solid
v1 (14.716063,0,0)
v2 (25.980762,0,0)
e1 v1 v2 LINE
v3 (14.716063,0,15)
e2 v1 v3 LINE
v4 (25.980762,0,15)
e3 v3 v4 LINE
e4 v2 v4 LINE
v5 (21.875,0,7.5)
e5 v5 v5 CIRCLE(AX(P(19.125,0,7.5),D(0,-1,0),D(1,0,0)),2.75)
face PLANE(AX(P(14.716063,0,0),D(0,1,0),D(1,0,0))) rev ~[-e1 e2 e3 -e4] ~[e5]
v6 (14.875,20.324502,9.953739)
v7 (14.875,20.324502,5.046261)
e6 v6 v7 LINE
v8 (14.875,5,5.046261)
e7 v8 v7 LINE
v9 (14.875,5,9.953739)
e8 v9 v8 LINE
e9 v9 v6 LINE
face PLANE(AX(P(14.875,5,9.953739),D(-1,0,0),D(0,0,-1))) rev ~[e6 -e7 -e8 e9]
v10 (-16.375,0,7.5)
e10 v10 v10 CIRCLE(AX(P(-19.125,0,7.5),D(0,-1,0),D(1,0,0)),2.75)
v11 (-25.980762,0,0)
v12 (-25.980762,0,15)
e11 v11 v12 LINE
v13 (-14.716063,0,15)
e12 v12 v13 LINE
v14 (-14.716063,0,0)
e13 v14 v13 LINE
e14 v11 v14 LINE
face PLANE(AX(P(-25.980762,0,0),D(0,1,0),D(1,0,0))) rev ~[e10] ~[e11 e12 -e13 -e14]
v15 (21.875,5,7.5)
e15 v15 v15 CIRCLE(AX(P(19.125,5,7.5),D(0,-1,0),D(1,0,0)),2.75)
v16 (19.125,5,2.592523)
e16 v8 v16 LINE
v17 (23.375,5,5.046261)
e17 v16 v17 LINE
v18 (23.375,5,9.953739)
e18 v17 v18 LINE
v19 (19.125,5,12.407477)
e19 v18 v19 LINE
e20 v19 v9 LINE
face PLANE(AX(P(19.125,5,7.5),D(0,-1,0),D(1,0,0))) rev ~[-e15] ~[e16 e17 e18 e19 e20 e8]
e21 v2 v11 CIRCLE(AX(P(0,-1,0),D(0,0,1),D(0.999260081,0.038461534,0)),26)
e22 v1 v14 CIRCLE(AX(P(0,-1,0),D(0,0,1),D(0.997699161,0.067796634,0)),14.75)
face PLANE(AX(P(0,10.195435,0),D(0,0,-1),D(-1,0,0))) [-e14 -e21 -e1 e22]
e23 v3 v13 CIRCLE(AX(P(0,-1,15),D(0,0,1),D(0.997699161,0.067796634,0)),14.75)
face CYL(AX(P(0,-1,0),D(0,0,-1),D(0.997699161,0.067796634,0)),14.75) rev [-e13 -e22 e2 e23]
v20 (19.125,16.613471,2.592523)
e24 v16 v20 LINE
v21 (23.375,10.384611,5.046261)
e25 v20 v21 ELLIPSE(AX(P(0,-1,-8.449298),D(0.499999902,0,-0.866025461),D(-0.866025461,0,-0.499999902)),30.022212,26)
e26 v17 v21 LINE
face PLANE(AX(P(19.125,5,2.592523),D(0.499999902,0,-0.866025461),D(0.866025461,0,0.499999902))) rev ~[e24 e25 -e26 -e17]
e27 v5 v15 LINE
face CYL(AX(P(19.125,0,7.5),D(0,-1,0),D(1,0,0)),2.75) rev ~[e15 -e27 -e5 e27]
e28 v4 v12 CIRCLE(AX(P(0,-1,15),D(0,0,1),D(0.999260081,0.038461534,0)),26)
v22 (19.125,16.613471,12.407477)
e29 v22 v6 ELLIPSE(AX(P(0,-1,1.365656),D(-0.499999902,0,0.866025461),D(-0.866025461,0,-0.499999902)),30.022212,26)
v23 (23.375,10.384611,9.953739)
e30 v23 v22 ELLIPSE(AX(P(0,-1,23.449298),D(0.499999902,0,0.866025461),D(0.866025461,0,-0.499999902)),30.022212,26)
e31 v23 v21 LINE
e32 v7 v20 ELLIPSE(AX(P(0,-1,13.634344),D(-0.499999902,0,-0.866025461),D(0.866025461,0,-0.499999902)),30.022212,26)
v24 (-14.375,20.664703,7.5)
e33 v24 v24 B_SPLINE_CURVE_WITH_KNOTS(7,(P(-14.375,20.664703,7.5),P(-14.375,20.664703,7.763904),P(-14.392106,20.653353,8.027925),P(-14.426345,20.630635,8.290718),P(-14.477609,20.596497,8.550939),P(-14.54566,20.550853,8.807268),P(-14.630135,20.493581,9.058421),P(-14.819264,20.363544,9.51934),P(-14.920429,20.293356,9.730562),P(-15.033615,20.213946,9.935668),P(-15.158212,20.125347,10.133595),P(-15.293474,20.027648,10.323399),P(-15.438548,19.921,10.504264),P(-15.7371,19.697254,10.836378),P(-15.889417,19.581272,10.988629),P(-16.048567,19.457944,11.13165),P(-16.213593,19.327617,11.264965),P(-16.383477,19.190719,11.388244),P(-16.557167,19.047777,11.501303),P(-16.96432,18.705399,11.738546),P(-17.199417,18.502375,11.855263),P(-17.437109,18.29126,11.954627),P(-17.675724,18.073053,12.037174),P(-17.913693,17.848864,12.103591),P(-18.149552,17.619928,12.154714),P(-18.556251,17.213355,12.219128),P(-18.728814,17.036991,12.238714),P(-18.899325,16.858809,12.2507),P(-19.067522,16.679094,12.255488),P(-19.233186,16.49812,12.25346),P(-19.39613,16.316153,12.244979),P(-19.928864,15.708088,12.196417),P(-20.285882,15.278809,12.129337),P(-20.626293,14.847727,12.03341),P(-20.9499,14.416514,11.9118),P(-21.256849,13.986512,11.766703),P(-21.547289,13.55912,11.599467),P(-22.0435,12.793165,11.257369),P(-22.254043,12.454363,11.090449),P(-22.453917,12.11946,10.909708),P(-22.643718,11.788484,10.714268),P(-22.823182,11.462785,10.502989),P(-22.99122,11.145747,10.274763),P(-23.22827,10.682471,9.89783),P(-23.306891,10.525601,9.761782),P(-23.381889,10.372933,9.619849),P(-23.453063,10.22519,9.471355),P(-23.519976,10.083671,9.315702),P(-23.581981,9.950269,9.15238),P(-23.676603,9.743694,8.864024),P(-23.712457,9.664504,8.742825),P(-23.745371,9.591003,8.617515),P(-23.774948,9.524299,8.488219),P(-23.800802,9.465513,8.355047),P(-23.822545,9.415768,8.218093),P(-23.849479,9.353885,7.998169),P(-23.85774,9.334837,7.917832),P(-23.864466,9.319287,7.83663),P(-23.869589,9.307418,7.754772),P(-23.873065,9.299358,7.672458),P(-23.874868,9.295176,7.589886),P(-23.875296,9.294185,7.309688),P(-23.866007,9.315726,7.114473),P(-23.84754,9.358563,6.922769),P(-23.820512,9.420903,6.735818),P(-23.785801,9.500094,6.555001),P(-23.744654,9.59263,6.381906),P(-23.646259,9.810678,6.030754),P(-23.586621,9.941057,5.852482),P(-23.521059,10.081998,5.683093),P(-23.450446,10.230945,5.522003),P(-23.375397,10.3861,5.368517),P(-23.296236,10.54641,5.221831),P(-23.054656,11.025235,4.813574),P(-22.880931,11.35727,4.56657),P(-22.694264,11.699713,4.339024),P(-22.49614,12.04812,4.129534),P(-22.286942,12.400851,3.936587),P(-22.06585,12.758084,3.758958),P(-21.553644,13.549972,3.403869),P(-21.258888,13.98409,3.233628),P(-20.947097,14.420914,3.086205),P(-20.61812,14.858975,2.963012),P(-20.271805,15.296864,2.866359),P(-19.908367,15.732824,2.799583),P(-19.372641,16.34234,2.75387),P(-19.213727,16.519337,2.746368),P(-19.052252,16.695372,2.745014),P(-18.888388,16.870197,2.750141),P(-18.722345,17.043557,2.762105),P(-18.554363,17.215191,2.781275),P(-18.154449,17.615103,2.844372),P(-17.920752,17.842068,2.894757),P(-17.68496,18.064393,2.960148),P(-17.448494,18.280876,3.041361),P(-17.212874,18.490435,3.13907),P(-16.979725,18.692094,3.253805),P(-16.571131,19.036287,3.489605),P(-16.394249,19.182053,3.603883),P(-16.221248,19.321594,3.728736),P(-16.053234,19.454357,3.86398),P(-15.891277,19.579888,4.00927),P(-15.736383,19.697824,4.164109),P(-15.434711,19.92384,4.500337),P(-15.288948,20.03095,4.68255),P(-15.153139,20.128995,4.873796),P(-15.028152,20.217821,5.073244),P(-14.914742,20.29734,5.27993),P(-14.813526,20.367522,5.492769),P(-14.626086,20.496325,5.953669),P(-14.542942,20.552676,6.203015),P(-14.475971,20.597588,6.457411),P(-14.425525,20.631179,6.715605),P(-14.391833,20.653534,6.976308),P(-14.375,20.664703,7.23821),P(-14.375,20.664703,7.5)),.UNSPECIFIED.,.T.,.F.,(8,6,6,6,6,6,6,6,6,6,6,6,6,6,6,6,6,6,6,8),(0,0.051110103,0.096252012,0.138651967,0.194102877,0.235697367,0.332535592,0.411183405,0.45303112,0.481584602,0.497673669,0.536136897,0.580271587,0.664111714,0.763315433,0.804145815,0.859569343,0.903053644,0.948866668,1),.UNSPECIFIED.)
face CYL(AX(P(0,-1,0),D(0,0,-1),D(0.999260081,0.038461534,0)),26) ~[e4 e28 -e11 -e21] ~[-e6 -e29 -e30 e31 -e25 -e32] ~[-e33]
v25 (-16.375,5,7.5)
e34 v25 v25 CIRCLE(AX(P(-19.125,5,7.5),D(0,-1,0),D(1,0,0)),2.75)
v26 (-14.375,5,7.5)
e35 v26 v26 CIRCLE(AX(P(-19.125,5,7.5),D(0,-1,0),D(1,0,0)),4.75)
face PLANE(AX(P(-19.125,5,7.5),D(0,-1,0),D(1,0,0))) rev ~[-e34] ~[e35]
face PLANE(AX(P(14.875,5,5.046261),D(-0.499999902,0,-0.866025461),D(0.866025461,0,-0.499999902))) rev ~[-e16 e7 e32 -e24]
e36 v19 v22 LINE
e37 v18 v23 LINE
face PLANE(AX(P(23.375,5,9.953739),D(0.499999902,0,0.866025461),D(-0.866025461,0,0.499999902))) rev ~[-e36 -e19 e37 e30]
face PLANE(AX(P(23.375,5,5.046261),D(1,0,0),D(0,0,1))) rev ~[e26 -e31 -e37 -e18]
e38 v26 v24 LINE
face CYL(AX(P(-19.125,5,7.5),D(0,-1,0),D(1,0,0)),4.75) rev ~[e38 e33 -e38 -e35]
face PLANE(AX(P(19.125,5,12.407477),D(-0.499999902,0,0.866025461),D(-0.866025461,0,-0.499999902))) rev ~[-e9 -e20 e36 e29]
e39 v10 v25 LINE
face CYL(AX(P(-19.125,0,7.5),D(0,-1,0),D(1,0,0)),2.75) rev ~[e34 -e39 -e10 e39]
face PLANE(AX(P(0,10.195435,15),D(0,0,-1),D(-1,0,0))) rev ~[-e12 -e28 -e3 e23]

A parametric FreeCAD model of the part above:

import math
import FreeCAD as App
import Part
import Sketcher
Q = App.Units.Quantity


def add_polygon(sketch, points):
    """Adds a closed chain of lines whose ends are joined by coincident constraints."""
    first, n = sketch.GeometryCount, len(points)
    for a, b in zip(points, points[1:] + points[:1]):
        sketch.addGeometry(Part.LineSegment(App.Vector(*a, 0), App.Vector(*b, 0)), False)
    for i in range(n):
        sketch.addConstraint(Sketcher.Constraint("Coincident", first + i, 2, first + (i + 1) % n, 1))

doc = App.newDocument("Part")
params = doc.addObject("Spreadsheet::Sheet", "Params")
for row, (alias, value) in enumerate([
    ("sketch1_radius", "26 mm"),
    ("sketch1_radius2", "14.75 mm"),
    ("pad1_length", "15 mm"),
    ("sketch2_diameter", "5.5 mm"),
    ("sketch3_diameter", "9.5 mm"),
], start=1):
    params.set(f"A{row}", alias)
    params.set(f"B{row}", "=" + value)
    params.setAlias(f"B{row}", alias)

body = doc.addObject("PartDesign::Body", "Body")

sketch1 = body.newObject("Sketcher::SketchObject", "Sketch")
sketch1.AttachmentSupport = (doc.getObject("XY_Plane"), [""])
sketch1.MapMode = "FlatFace"
sketch1.addGeometry(Part.ArcOfCircle(Part.Circle(App.Vector(0, -1, 0), App.Vector(0, 0, 1), 15), math.radians(4), math.radians(176)), False)
sketch1.addGeometry(Part.LineSegment(App.Vector(15, 0, 0), App.Vector(26, 0, 0)), False)
sketch1.addGeometry(Part.ArcOfCircle(Part.Circle(App.Vector(0, -1, 0), App.Vector(0, 0, 1), 26), math.radians(2), math.radians(178)), False)
sketch1.addGeometry(Part.LineSegment(App.Vector(-26, 0, 0), App.Vector(-15, 0, 0)), False)
sketch1.addConstraint(Sketcher.Constraint("Coincident", 0, 1, 1, 1))
sketch1.addConstraint(Sketcher.Constraint("Coincident", 1, 2, 2, 1))
sketch1.addConstraint(Sketcher.Constraint("Coincident", 2, 2, 3, 1))
sketch1.addConstraint(Sketcher.Constraint("Coincident", 3, 2, 0, 2))
sketch1.addConstraint(Sketcher.Constraint("Horizontal", 1))
sketch1.addConstraint(Sketcher.Constraint("Horizontal", 3))
sketch1.addConstraint(Sketcher.Constraint("Coincident", 2, 3, 0, 3))
sketch1.addConstraint(Sketcher.Constraint("Symmetric", 1, 2, 2, 2, -1, 1))
sketch1.addConstraint(Sketcher.Constraint("PointOnObject", 0, 3, -2))
sketch1.addConstraint(Sketcher.Constraint("Radius", 2, 26.0))
sketch1.addConstraint(Sketcher.Constraint("Radius", 0, 14.75))
sketch1.addConstraint(Sketcher.Constraint("DistanceY", 0, 3, -1, 1, 1.0))
sketch1.setExpression("Constraints[9]", "Params.sketch1_radius")
sketch1.setExpression("Constraints[10]", "Params.sketch1_radius2")
pad1 = body.newObject("PartDesign::Pad", "Pad")
pad1.Profile = sketch1
pad1.setExpression("Length", "Params.pad1_length")

sketch2 = body.newObject("Sketcher::SketchObject", "Sketch001")
sketch2.AttachmentSupport = (doc.getObject("XZ_Plane"), [""])
sketch2.MapMode = "FlatFace"
sketch2.addGeometry(Part.Circle(App.Vector(-19.1, 7.5, 0), App.Vector(0, 0, 1), 2.8), False)
sketch2.addGeometry(Part.Circle(App.Vector(19.1, 7.5, 0), App.Vector(0, 0, 1), 2.8), False)
sketch2.addConstraint(Sketcher.Constraint("Equal", 0, 1))
sketch2.addConstraint(Sketcher.Constraint("Symmetric", 0, 3, 1, 3, -2))
sketch2.addConstraint(Sketcher.Constraint("Diameter", 0, 5.5))
sketch2.addConstraint(Sketcher.Constraint("DistanceY", -1, 1, 0, 3, 7.5))
sketch2.addConstraint(Sketcher.Constraint("DistanceX", 0, 3, 1, 3, 38.25))
sketch2.setExpression("Constraints[2]", "Params.sketch2_diameter")
pocket1 = body.newObject("PartDesign::Pocket", "Pocket")
pocket1.Profile = sketch2
pocket1.Type = "ThroughAll"

sketch3 = body.newObject("Sketcher::SketchObject", "Sketch002")
sketch3.AttachmentSupport = (doc.getObject("XZ_Plane"), [""])
sketch3.MapMode = "FlatFace"
sketch3.AttachmentOffset = App.Placement(App.Vector(0, 0, -5), App.Rotation())
sketch3.addGeometry(Part.Circle(App.Vector(-19.1, 7.5, 0), App.Vector(0, 0, 1), 4.8), False)
add_polygon(sketch3, [(19.1, 2.6), (23.4, 5), (23.4, 10), (19.1, 12.4), (14.9, 10), (14.9, 5)])
sketch3.addConstraint(Sketcher.Constraint("Vertical", 2))
sketch3.addConstraint(Sketcher.Constraint("Vertical", 5))
sketch3.addConstraint(Sketcher.Constraint("Parallel", 1, 4))
sketch3.addConstraint(Sketcher.Constraint("Parallel", 3, 6))
sketch3.addConstraint(Sketcher.Constraint("Horizontal", 2, 2, 4, 2))
sketch3.addConstraint(Sketcher.Constraint("Horizontal", 1, 2, 5, 2))
sketch3.addConstraint(Sketcher.Constraint("Vertical", 3, 2, 6, 2))
sketch3.addConstraint(Sketcher.Constraint("Diameter", 0, 9.5))
sketch3.addConstraint(Sketcher.Constraint("Angle", 1, Q("29.999993 deg")))
sketch3.addConstraint(Sketcher.Constraint("DistanceX", 0, 3, 4, 2, 34.0))
sketch3.addConstraint(Sketcher.Constraint("DistanceY", -1, 1, 0, 3, 7.5))
sketch3.addConstraint(Sketcher.Constraint("DistanceX", 0, 3, 1, 2, 42.5))
sketch3.addConstraint(Sketcher.Constraint("DistanceX", 0, 3, -1, 1, 19.125))
sketch3.addConstraint(Sketcher.Constraint("DistanceY", 2, 1, 2, 2, 4.907478))
sketch3.addConstraint(Sketcher.Constraint("DistanceY", -1, 1, 1, 2, 5.046261))
sketch3.setExpression("Constraints[13]", "Params.sketch3_diameter")
pocket2 = body.newObject("PartDesign::Pocket", "Pocket001")
pocket2.Profile = sketch3
pocket2.Type = "ThroughAll"

doc.recompute()
